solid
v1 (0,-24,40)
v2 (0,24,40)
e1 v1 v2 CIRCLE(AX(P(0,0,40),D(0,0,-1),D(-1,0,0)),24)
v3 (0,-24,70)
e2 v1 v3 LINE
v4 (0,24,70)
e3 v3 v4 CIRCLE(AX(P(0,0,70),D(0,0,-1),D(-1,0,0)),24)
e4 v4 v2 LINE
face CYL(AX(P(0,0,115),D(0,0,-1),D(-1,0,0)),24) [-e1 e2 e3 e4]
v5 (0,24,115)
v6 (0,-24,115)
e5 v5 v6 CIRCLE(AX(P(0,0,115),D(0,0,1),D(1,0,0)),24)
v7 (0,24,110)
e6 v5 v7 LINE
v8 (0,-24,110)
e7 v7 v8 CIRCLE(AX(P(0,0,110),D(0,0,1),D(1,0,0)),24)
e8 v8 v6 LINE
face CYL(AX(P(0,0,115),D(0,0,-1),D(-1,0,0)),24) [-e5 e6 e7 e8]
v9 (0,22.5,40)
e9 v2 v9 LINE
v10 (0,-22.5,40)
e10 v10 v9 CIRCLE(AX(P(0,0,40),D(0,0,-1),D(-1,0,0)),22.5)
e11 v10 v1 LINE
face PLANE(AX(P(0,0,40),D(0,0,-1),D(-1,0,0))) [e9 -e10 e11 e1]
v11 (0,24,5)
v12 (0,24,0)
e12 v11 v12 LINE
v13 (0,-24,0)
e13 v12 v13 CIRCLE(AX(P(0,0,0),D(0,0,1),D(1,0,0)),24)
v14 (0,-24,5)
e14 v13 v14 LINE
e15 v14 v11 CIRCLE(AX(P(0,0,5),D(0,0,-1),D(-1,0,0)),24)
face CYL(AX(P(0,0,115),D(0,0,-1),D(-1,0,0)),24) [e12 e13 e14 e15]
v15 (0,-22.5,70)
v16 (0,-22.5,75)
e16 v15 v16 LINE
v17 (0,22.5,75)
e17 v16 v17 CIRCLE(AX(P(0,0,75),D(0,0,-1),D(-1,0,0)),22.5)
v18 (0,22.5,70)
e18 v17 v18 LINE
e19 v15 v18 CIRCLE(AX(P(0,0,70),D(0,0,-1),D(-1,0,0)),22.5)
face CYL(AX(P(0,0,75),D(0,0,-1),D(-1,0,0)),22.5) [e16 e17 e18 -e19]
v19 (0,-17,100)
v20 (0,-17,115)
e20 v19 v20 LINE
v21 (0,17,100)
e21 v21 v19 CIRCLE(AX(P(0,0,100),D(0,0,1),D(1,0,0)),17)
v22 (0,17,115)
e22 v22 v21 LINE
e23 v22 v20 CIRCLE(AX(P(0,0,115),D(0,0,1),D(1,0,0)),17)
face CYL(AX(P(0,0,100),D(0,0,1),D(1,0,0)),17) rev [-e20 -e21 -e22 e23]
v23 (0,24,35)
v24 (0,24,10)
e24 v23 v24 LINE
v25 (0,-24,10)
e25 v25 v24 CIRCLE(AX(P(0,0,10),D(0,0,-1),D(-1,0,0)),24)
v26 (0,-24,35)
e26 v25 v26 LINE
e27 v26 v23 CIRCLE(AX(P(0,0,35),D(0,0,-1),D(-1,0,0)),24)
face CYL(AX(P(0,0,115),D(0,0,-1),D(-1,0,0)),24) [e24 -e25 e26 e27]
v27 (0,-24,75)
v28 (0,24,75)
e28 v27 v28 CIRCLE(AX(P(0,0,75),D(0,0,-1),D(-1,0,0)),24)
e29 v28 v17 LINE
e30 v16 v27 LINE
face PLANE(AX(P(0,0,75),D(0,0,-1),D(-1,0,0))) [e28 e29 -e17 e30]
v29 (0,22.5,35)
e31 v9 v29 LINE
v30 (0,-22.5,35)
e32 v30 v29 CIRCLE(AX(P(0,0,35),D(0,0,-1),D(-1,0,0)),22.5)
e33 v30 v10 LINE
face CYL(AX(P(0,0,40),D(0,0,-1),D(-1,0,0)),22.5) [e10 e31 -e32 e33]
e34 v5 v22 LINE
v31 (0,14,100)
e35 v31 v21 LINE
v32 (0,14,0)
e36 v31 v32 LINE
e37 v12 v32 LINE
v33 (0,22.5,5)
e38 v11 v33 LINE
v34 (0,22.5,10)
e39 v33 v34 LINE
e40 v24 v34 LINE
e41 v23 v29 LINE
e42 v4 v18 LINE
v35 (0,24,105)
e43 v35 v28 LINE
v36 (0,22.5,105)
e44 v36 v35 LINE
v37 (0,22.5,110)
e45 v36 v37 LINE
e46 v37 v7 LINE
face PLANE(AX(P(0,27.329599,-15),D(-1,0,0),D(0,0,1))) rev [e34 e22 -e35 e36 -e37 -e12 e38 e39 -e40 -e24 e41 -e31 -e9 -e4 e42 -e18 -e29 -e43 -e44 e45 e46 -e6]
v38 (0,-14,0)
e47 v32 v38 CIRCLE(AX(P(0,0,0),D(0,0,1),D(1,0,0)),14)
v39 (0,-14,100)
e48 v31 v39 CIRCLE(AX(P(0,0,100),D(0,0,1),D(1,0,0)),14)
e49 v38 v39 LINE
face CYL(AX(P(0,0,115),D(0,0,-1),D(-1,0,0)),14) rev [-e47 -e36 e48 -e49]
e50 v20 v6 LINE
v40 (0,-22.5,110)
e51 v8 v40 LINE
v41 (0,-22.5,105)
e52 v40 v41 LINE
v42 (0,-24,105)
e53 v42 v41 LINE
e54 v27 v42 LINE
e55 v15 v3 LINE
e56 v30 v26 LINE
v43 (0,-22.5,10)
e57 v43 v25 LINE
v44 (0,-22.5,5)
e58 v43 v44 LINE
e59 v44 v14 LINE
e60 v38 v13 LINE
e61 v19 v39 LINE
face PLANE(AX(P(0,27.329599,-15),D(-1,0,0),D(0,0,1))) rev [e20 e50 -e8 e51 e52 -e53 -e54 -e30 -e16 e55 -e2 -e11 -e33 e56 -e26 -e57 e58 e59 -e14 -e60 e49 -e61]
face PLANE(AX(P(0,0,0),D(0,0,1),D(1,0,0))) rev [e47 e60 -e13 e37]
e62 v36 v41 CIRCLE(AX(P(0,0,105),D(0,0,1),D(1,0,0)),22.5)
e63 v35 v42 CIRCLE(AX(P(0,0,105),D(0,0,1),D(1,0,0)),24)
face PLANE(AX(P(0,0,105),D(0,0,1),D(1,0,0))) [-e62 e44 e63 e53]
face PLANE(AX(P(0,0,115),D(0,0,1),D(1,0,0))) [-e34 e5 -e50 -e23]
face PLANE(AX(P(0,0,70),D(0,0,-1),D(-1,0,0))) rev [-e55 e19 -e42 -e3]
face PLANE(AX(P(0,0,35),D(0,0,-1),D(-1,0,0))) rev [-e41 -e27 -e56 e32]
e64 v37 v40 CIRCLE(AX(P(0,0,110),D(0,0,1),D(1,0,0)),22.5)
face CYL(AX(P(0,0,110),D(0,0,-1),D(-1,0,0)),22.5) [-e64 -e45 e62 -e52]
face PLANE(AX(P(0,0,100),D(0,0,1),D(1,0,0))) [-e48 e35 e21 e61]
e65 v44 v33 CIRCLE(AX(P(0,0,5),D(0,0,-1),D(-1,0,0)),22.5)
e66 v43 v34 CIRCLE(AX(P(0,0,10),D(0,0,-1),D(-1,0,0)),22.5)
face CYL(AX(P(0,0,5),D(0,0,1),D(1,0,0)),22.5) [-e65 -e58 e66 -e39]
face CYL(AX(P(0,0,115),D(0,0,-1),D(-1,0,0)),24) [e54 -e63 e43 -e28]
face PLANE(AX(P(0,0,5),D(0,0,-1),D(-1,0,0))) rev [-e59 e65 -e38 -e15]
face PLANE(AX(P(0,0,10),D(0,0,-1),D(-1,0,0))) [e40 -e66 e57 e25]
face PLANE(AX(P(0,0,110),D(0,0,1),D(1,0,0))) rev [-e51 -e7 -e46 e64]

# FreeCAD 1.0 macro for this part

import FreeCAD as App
import Part
import Sketcher

doc = App.newDocument("Part")
params = doc.addObject("Spreadsheet::Sheet", "Params")
for row, (alias, value) in enumerate([
    ("sketch1_diameter", "48 mm"),
    ("sketch1_diameter2", "28 mm"),
    ("pad1_length", "115 mm"),
    ("pocket1_length", "130 mm"),
    ("sketch3_diameter", "34 mm"),
    ("pocket2_length", "15 mm"),
    ("sketch4_diameter", "45 mm"),
    ("pocket3_length", "5 mm"),
    ("sketch5_diameter", "45 mm"),
    ("pocket4_length", "5 mm"),
    ("sketch6_diameter", "45 mm"),
    ("pocket5_length", "5 mm"),
    ("sketch7_diameter", "45 mm"),
    ("pocket6_length", "5 mm"),
], start=1):
    params.set(f"A{row}", alias)
    params.set(f"B{row}", "=" + value)
    params.setAlias(f"B{row}", alias)

body = doc.addObject("PartDesign::Body", "Body")

sketch1 = doc.addObject("Sketcher::SketchObject", "Sketch")
body.addObject(sketch1)
sketch1.AttachmentSupport = (doc.XY_Plane, [""])
sketch1.MapMode = "FlatFace"
sketch1.addGeometry([
    Part.Circle(App.Vector(0, 0, 0), App.Vector(0, 0, 1), 24),
    Part.Circle(App.Vector(0, 0, 0), App.Vector(0, 0, 1), 14),
], False)
sketch1.addConstraint([
    Sketcher.Constraint("Coincident", 0, 3, -1, 1),
    Sketcher.Constraint("Coincident", 1, 3, -1, 1),
    Sketcher.Constraint("Diameter", 0, 48.0),
    Sketcher.Constraint("Diameter", 1, 28.0),
])
sketch1.setExpression("Constraints[2]", "Params.sketch1_diameter")
sketch1.setExpression("Constraints[3]", "Params.sketch1_diameter2")
pad1 = doc.addObject("PartDesign::Pad", "Pad")
body.addObject(pad1)
pad1.Profile = sketch1
pad1.setExpression("Length", "Params.pad1_length")

sketch2 = doc.addObject("Sketcher::SketchObject", "Sketch001")
body.addObject(sketch2)
sketch2.AttachmentSupport = (doc.XY_Plane, [""])
sketch2.MapMode = "FlatFace"
sketch2.AttachmentOffset = App.Placement(App.Vector(0, 0, 115), App.Rotation())
sketch2.addGeometry([
    Part.LineSegment(App.Vector(0, 27, 0), App.Vector(0, -28, 0)),
    Part.LineSegment(App.Vector(0, -28, 0), App.Vector(31, -28, 0)),
    Part.LineSegment(App.Vector(31, -28, 0), App.Vector(31, 27, 0)),
    Part.LineSegment(App.Vector(31, 27, 0), App.Vector(0, 27, 0)),
], False)
sketch2.addConstraint([
    Sketcher.Constraint("Coincident", 0, 2, 1, 1),
    Sketcher.Constraint("Coincident", 1, 2, 2, 1),
    Sketcher.Constraint("Coincident", 2, 2, 3, 1),
    Sketcher.Constraint("Coincident", 3, 2, 0, 1),
    Sketcher.Constraint("Vertical", 0),
    Sketcher.Constraint("Horizontal", 1),
    Sketcher.Constraint("Vertical", 2),
    Sketcher.Constraint("Horizontal", 3),
    Sketcher.Constraint("PointOnObject", 0, 2, -2),
    Sketcher.Constraint("DistanceY", -1, 1, 2, 2, 27.329599),
    Sketcher.Constraint("DistanceX", 1, 1, 1, 2, 30.560485),
    Sketcher.Constraint("DistanceY", 0, 2, 0, 1, 55.665733),
])
pocket1 = doc.addObject("PartDesign::Pocket", "Pocket")
body.addObject(pocket1)
pocket1.Profile = sketch2
pocket1.setExpression("Length", "Params.pocket1_length")

sketch3 = doc.addObject("Sketcher::SketchObject", "Sketch002")
body.addObject(sketch3)
sketch3.AttachmentSupport = (doc.XY_Plane, [""])
sketch3.MapMode = "FlatFace"
sketch3.AttachmentOffset = App.Placement(App.Vector(0, 0, 115), App.Rotation())
sketch3.addGeometry(Part.Circle(App.Vector(0, 0, 0), App.Vector(0, 0, 1), 17), False)
sketch3.addConstraint([
    Sketcher.Constraint("Coincident", 0, 3, -1, 1),
    Sketcher.Constraint("Diameter", 0, 34.0),
])
sketch3.setExpression("Constraints[1]", "Params.sketch3_diameter")
pocket2 = doc.addObject("PartDesign::Pocket", "Pocket001")
body.addObject(pocket2)
pocket2.Profile = sketch3
pocket2.setExpression("Length", "Params.pocket2_length")

sketch4 = doc.addObject("Sketcher::SketchObject", "Sketch003")
body.addObject(sketch4)
sketch4.AttachmentSupport = (doc.XY_Plane, [""])
sketch4.MapMode = "FlatFace"
sketch4.AttachmentOffset = App.Placement(App.Vector(0, 0, 35), App.Rotation())
sketch4.addGeometry([
    Part.Circle(App.Vector(0, 0, 0), App.Vector(0, 0, 1), 29),
    Part.Circle(App.Vector(0, 0, 0), App.Vector(0, 0, 1), 22),
], False)
sketch4.addConstraint([
    Sketcher.Constraint("Coincident", 0, 3, -1, 1),
    Sketcher.Constraint("Coincident", 1, 3, -1, 1),
    Sketcher.Constraint("Diameter", 1, 45.0),
    Sketcher.Constraint("Diameter", 0, 58.697381),
])
sketch4.setExpression("Constraints[2]", "Params.sketch4_diameter")
pocket3 = doc.addObject("PartDesign::Pocket", "Pocket002")
body.addObject(pocket3)
pocket3.Profile = sketch4
pocket3.setExpression("Length", "Params.pocket3_length")
pocket3.Reversed = True

sketch5 = doc.addObject("Sketcher::SketchObject", "Sketch004")
body.addObject(sketch5)
sketch5.AttachmentSupport = (doc.XY_Plane, [""])
sketch5.MapMode = "FlatFace"
sketch5.AttachmentOffset = App.Placement(App.Vector(0, 0, 70), App.Rotation())
sketch5.addGeometry([
    Part.Circle(App.Vector(0, 0, 0), App.Vector(0, 0, 1), 32),
    Part.Circle(App.Vector(0, 0, 0), App.Vector(0, 0, 1), 22),
], False)
sketch5.addConstraint([
    Sketcher.Constraint("Coincident", 0, 3, -1, 1),
    Sketcher.Constraint("Coincident", 1, 3, -1, 1),
    Sketcher.Constraint("Diameter", 1, 45.0),
    Sketcher.Constraint("Diameter", 0, 64.455075),
])
sketch5.setExpression("Constraints[2]", "Params.sketch5_diameter")
pocket4 = doc.addObject("PartDesign::Pocket", "Pocket003")
body.addObject(pocket4)
pocket4.Profile = sketch5
pocket4.setExpression("Length", "Params.pocket4_length")
pocket4.Reversed = True

sketch6 = doc.addObject("Sketcher::SketchObject", "Sketch005")
body.addObject(sketch6)
sketch6.AttachmentSupport = (doc.XY_Plane, [""])
sketch6.MapMode = "FlatFace"
sketch6.AttachmentOffset = App.Placement(App.Vector(0, 0, 105), App.Rotation())
sketch6.addGeometry([
    Part.Circle(App.Vector(0, 0, 0), App.Vector(0, 0, 1), 32),
    Part.Circle(App.Vector(0, 0, 0), App.Vector(0, 0, 1), 22),
], False)
sketch6.addConstraint([
    Sketcher.Constraint("Coincident", 0, 3, -1, 1),
    Sketcher.Constraint("Coincident", 1, 3, -1, 1),
    Sketcher.Constraint("Diameter", 1, 45.0),
    Sketcher.Constraint("Diameter", 0, 64.819068),
])
sketch6.setExpression("Constraints[2]", "Params.sketch6_diameter")
pocket5 = doc.addObject("PartDesign::Pocket", "Pocket004")
body.addObject(pocket5)
pocket5.Profile = sketch6
pocket5.setExpression("Length", "Params.pocket5_length")
pocket5.Reversed = True

sketch7 = doc.addObject("Sketcher::SketchObject", "Sketch006")
body.addObject(sketch7)
sketch7.AttachmentSupport = (doc.XY_Plane, [""])
sketch7.MapMode = "FlatFace"
sketch7.AttachmentOffset = App.Placement(App.Vector(0, 0, 5), App.Rotation())
sketch7.addGeometry([
    Part.Circle(App.Vector(0, 0, 0), App.Vector(0, 0, 1), 39),
    Part.Circle(App.Vector(0, 0, 0), App.Vector(0, 0, 1), 22),
], False)
sketch7.addConstraint([
    Sketcher.Constraint("Coincident", 0, 3, -1, 1),
    Sketcher.Constraint("Coincident", 1, 3, -1, 1),
    Sketcher.Constraint("Diameter", 1, 45.0),
    Sketcher.Constraint("Diameter", 0, 78.712764),
])
sketch7.setExpression("Constraints[2]", "Params.sketch7_diameter")
pocket6 = doc.addObject("PartDesign::Pocket", "Pocket005")
body.addObject(pocket6)
pocket6.Profile = sketch7
pocket6.setExpression("Length", "Params.pocket6_length")
pocket6.Reversed = True

doc.recompute()
